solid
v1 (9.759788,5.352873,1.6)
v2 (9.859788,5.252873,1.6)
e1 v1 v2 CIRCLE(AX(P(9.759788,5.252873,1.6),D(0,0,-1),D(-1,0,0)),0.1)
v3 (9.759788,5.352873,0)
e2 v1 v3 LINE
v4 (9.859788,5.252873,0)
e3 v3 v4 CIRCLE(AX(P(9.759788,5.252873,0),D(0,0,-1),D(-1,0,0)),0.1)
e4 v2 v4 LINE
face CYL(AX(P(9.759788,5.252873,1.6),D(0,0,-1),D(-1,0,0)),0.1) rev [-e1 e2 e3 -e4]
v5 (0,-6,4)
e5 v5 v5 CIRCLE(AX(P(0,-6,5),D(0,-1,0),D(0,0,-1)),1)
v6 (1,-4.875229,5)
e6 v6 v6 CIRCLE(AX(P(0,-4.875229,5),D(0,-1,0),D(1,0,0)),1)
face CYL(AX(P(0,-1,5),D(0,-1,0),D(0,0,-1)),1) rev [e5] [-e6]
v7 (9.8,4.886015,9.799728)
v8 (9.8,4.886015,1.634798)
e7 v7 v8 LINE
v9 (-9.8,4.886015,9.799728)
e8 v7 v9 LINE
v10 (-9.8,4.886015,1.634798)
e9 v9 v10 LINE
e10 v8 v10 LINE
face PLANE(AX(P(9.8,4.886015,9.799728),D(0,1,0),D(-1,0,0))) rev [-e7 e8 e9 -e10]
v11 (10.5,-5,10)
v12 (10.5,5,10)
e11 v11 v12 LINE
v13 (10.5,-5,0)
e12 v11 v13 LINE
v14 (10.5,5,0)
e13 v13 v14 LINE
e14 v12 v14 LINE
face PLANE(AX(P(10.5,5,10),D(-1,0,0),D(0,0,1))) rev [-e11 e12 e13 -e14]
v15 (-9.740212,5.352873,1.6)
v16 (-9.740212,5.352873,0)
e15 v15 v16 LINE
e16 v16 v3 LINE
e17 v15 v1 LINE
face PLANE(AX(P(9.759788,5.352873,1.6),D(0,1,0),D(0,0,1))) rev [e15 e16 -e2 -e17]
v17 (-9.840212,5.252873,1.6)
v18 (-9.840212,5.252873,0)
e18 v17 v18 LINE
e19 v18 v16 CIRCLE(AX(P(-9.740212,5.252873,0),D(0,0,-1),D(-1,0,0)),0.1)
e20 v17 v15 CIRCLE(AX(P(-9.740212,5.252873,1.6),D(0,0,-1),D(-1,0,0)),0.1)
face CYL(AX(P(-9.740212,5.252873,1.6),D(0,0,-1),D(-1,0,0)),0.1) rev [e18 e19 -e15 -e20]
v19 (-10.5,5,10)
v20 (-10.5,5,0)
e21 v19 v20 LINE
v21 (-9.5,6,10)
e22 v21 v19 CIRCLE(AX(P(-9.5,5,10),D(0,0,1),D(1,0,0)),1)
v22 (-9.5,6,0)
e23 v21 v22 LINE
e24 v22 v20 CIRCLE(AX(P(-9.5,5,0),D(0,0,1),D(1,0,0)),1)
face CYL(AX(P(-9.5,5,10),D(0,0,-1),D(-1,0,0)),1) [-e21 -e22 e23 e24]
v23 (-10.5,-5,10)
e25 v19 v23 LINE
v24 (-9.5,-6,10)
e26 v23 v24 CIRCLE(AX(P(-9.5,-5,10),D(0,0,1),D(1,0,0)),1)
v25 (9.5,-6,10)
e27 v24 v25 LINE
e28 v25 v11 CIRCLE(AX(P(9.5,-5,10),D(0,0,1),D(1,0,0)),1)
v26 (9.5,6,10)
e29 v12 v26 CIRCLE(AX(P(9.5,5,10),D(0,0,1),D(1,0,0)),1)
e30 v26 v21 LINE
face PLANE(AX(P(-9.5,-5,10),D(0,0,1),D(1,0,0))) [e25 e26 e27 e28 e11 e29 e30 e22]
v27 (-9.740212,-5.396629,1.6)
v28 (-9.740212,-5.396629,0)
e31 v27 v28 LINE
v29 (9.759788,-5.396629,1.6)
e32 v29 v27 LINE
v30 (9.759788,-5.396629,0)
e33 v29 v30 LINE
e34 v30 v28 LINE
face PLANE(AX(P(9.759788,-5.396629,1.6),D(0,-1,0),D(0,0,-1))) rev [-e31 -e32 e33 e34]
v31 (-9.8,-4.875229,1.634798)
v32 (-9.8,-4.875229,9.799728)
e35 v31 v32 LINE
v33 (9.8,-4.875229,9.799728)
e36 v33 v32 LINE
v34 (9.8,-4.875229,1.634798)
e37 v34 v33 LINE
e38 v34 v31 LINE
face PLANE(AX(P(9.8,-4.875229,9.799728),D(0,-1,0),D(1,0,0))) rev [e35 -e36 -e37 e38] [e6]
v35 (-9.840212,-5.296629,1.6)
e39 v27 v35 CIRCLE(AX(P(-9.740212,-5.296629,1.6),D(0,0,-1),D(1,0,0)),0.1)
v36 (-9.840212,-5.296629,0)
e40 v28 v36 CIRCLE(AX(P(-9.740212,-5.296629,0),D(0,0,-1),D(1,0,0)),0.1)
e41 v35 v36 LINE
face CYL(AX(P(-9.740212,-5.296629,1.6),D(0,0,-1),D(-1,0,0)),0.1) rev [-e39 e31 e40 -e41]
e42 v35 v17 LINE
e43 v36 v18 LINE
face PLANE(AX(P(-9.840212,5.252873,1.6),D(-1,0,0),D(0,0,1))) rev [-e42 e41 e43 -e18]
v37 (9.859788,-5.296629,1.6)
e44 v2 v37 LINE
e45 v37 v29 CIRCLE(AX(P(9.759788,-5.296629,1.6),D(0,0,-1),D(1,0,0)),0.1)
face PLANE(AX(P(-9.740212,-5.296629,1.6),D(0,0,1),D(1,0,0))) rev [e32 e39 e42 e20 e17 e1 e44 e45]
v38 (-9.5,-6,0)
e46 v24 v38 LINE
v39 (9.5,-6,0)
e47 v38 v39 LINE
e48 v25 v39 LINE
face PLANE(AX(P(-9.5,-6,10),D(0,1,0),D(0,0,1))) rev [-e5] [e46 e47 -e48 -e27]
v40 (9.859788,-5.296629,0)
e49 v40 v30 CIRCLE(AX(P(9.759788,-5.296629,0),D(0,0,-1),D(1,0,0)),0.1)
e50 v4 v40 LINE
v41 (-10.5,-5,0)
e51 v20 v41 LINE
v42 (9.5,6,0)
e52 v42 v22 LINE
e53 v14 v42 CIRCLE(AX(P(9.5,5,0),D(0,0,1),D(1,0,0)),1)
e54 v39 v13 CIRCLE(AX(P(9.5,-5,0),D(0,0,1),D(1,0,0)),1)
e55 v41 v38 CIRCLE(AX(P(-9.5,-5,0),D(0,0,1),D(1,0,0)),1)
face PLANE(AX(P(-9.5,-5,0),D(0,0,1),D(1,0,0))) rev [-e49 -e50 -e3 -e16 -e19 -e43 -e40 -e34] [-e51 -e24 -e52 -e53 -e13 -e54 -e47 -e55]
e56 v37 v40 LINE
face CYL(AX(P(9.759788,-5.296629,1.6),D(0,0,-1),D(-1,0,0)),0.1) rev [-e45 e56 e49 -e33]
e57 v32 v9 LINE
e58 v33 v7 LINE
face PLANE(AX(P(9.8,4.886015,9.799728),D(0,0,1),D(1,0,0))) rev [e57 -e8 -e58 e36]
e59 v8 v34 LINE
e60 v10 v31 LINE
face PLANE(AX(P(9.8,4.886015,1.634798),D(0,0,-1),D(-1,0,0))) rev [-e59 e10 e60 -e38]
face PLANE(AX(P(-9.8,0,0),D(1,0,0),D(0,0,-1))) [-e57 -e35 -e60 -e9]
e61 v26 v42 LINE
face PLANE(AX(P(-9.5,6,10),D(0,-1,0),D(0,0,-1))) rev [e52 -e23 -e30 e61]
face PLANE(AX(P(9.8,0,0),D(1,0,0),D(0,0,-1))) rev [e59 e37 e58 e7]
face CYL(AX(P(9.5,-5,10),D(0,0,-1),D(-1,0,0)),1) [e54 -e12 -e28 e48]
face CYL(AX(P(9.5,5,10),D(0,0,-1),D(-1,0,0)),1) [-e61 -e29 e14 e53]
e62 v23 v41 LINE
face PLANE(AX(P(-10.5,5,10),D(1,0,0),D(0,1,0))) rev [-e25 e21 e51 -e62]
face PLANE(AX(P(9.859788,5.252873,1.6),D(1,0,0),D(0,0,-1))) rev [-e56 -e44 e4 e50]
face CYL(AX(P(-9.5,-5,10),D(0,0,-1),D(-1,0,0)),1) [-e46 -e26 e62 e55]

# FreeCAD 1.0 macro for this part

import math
import FreeCAD as App
import Part
import Sketcher
from FreeCAD import Vector
Q = App.Units.Quantity

doc = App.newDocument("Part")
body = doc.addObject("PartDesign::Body", "Body")

# Sketch on XY plane
sketch1 = body.newObject("Sketcher::SketchObject", "Sketch")
sketch1.AttachmentSupport = (doc.getObject("XY_Plane"), [""])
sketch1.MapMode = "FlatFace"
sketch1.addGeometry([
    Part.LineSegment(Vector(9.5, 6, 0), Vector(-9.5, 6, 0)),  # 0
    Part.ArcOfCircle(Part.Circle(Vector(-9.5, 5, 0), Vector(0, 0, 1), 1), math.radians(90), math.radians(180)),  # 1
    Part.LineSegment(Vector(-10.5, 5, 0), Vector(-10.5, -5, 0)),  # 2
    Part.ArcOfCircle(Part.Circle(Vector(-9.5, -5, 0), Vector(0, 0, 1), 1), math.radians(-180), math.radians(-90)),  # 3
    Part.LineSegment(Vector(-9.5, -6, 0), Vector(9.5, -6, 0)),  # 4
    Part.ArcOfCircle(Part.Circle(Vector(9.5, -5, 0), Vector(0, 0, 1), 1), math.radians(-90), math.radians(0)),  # 5
    Part.LineSegment(Vector(10.5, -5, 0), Vector(10.5, 5, 0)),  # 6
    Part.ArcOfCircle(Part.Circle(Vector(9.5, 5, 0), Vector(0, 0, 1), 1), math.radians(0), math.radians(90)),  # 7
], False)
sketch1.addConstraint([
    Sketcher.Constraint("Tangent", 0, 2, 1, 1),
    Sketcher.Constraint("Tangent", 1, 2, 2, 1),
    Sketcher.Constraint("Tangent", 2, 2, 3, 1),
    Sketcher.Constraint("Tangent", 3, 2, 4, 1),
    Sketcher.Constraint("Tangent", 4, 2, 5, 1),
    Sketcher.Constraint("Tangent", 5, 2, 6, 1),
    Sketcher.Constraint("Tangent", 6, 2, 7, 1),
    Sketcher.Constraint("Tangent", 7, 2, 0, 1),
    Sketcher.Constraint("Horizontal", 0),
    Sketcher.Constraint("Vertical", 2),
    Sketcher.Constraint("Horizontal", 4),
    Sketcher.Constraint("Vertical", 6),
    Sketcher.Constraint("Equal", 1, 3),
    Sketcher.Constraint("Equal", 3, 5),
    Sketcher.Constraint("Equal", 5, 7),
    Sketcher.Constraint("Symmetric", 1, 3, 5, 3, -1, 1),
    Sketcher.Constraint("Radius", 1, Q("1 mm")),
    Sketcher.Constraint("DistanceX", 0, 2, 0, 1, Q("19 mm")),
    Sketcher.Constraint("DistanceY", 2, 2, 2, 1, Q("10 mm")),
])
pad1 = body.newObject("PartDesign::Pad", "Pad")
pad1.Profile = sketch1
pad1.Length = 10

# Sketch on XY plane
sketch2 = body.newObject("Sketcher::SketchObject", "Sketch001")
sketch2.AttachmentSupport = (doc.getObject("XY_Plane"), [""])
sketch2.MapMode = "FlatFace"
sketch2.addGeometry([
    Part.LineSegment(Vector(-9.74, 5.35, 0), Vector(9.76, 5.35, 0)),  # 0
    Part.ArcOfCircle(Part.Circle(Vector(9.76, 5.25, 0), Vector(0, 0, 1), 0.1), math.radians(0), math.radians(90)),  # 1
    Part.LineSegment(Vector(9.86, 5.25, 0), Vector(9.86, -5.3, 0)),  # 2
    Part.ArcOfCircle(Part.Circle(Vector(9.76, -5.3, 0), Vector(0, 0, 1), 0.1), math.radians(-90), math.radians(0)),  # 3
    Part.LineSegment(Vector(9.76, -5.4, 0), Vector(-9.74, -5.4, 0)),  # 4
    Part.ArcOfCircle(Part.Circle(Vector(-9.74, -5.3, 0), Vector(0, 0, 1), 0.1), math.radians(180), math.radians(270)),  # 5
    Part.LineSegment(Vector(-9.84, -5.3, 0), Vector(-9.84, 5.25, 0)),  # 6
    Part.ArcOfCircle(Part.Circle(Vector(-9.74, 5.25, 0), Vector(0, 0, 1), 0.1), math.radians(90), math.radians(180)),  # 7
], False)
sketch2.addConstraint([
    Sketcher.Constraint("Tangent", 0, 2, 1, 2),
    Sketcher.Constraint("Tangent", 1, 1, 2, 1),
    Sketcher.Constraint("Tangent", 2, 2, 3, 2),
    Sketcher.Constraint("Tangent", 3, 1, 4, 1),
    Sketcher.Constraint("Tangent", 4, 2, 5, 2),
    Sketcher.Constraint("Tangent", 5, 1, 6, 1),
    Sketcher.Constraint("Tangent", 6, 2, 7, 2),
    Sketcher.Constraint("Tangent", 7, 1, 0, 1),
    Sketcher.Constraint("Horizontal", 0),
    Sketcher.Constraint("Vertical", 2),
    Sketcher.Constraint("Horizontal", 4),
    Sketcher.Constraint("Vertical", 6),
    Sketcher.Constraint("Equal", 1, 3),
    Sketcher.Constraint("Equal", 3, 5),
    Sketcher.Constraint("Equal", 5, 7),
    Sketcher.Constraint("Radius", 1, Q("0.1 mm")),
    Sketcher.Constraint("DistanceX", 0, 1, 0, 2, Q("19.5 mm")),
    Sketcher.Constraint("DistanceY", 2, 2, 2, 1, Q("10.549502 mm")),
    Sketcher.Constraint("DistanceY", 3, 3, -1, 1, Q("5.296629 mm")),
    Sketcher.Constraint("DistanceX", -1, 1, 1, 3, Q("9.759788 mm")),
])
pocket1 = body.newObject("PartDesign::Pocket", "Pocket")
pocket1.Profile = sketch2
pocket1.Length = 1.6
pocket1.Reversed = True

# Sketch on YZ plane
sketch3 = body.newObject("Sketcher::SketchObject", "Sketch002")
sketch3.AttachmentSupport = (doc.getObject("YZ_Plane"), [""])
sketch3.MapMode = "FlatFace"
sketch3.AttachmentOffset = App.Placement(Vector(0, 0, -9.8), App.Rotation())
sketch3.addGeometry([
    Part.LineSegment(Vector(5, 2, 0), Vector(-5, 2, 0)),
    Part.LineSegment(Vector(-5, 2, 0), Vector(-5, 10, 0)),
    Part.LineSegment(Vector(-5, 10, 0), Vector(5, 10, 0)),
    Part.LineSegment(Vector(5, 10, 0), Vector(5, 2, 0)),
], False)
sketch3.addConstraint([
    Sketcher.Constraint("Coincident", 0, 2, 1, 1),
    Sketcher.Constraint("Coincident", 1, 2, 2, 1),
    Sketcher.Constraint("Coincident", 2, 2, 3, 1),
    Sketcher.Constraint("Coincident", 3, 2, 0, 1),
    Sketcher.Constraint("Horizontal", 0),
    Sketcher.Constraint("Vertical", 1),
    Sketcher.Constraint("Horizontal", 2),
    Sketcher.Constraint("Vertical", 3),
    Sketcher.Constraint("DistanceY", 1, 1, 1, 2, Q("8.16493 mm")),
    Sketcher.Constraint("DistanceX", 0, 2, 0, 1, Q("9.761244 mm")),
    Sketcher.Constraint("DistanceX", 0, 2, -1, 1, Q("4.875229 mm")),
    Sketcher.Constraint("DistanceY", -1, 1, 0, 2, Q("1.634798 mm")),
])
pocket2 = body.newObject("PartDesign::Pocket", "Pocket001")
pocket2.Profile = sketch3
pocket2.Length = 19.6
pocket2.Reversed = True

# Sketch on XZ plane
sketch4 = body.newObject("Sketcher::SketchObject", "Sketch003")
sketch4.AttachmentSupport = (doc.getObject("XZ_Plane"), [""])
sketch4.MapMode = "FlatFace"
sketch4.AttachmentOffset = App.Placement(Vector(0, 0, 6), App.Rotation())
sketch4.addGeometry(Part.Circle(Vector(0, 5, 0), Vector(0, 0, 1), 1), False)
sketch4.addConstraint([
    Sketcher.Constraint("PointOnObject", 0, 3, -2),
    Sketcher.Constraint("Diameter", 0, Q("2 mm")),
    Sketcher.Constraint("DistanceY", -1, 1, 0, 3, Q("5 mm")),
])
pocket3 = body.newObject("PartDesign::Pocket", "Pocket002")
pocket3.Profile = sketch4
pocket3.Length = 5

doc.recompute()
